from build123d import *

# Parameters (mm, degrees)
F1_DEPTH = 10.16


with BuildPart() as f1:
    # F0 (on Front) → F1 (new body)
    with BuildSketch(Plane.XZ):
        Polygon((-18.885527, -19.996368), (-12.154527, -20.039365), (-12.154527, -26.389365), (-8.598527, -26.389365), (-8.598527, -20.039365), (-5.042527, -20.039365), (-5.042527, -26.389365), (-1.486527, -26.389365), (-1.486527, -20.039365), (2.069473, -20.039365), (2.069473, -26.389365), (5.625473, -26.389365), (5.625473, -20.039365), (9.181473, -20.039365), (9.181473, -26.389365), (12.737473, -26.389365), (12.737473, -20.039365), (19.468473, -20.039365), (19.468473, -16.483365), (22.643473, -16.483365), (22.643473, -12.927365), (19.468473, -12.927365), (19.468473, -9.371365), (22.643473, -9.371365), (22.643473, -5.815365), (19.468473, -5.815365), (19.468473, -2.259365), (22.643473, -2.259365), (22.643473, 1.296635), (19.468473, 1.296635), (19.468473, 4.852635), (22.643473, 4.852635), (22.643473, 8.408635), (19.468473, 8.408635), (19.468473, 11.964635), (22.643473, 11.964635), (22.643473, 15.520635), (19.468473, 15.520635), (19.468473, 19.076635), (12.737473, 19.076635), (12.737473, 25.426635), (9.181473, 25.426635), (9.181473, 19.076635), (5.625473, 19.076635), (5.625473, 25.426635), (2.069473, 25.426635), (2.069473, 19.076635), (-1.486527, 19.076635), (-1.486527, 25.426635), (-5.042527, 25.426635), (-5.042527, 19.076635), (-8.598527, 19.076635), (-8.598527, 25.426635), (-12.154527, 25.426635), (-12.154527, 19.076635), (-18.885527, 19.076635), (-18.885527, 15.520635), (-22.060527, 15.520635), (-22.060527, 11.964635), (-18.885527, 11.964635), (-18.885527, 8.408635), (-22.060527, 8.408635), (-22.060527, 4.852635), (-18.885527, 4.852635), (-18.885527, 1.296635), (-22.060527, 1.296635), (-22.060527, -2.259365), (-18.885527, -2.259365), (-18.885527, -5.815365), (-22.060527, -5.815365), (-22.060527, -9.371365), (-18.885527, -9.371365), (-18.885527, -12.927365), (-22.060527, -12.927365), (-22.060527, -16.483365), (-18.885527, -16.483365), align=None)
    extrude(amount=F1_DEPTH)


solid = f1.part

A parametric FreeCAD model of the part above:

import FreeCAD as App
import Part
import Sketcher
Q = App.Units.Quantity


def add_polygon(sketch, points):
    """Adds a closed chain of lines whose ends are joined by coincident constraints."""
    first, n = sketch.GeometryCount, len(points)
    for a, b in zip(points, points[1:] + points[:1]):
        sketch.addGeometry(Part.LineSegment(App.Vector(*a, 0), App.Vector(*b, 0)), False)
    for i in range(n):
        sketch.addConstraint(Sketcher.Constraint("Coincident", first + i, 2, first + (i + 1) % n, 1))

doc = App.newDocument("Part")
params = doc.addObject("Spreadsheet::Sheet", "Params")
for row, (alias, value) in enumerate([
    ("sketch1_width", "0.14 in"),
    ("sketch1_height", "0.25 in"),
    ("sketch1_width2", "0.265 in"),
    ("sketch1_width3", "0.125 in"),
    ("pad1_length", "0.4 in"),
], start=1):
    params.set(f"A{row}", alias)
    params.set(f"B{row}", "=" + value)
    params.setAlias(f"B{row}", alias)

body = doc.addObject("PartDesign::Body", "Body")

sketch1 = doc.addObject("Sketcher::SketchObject", "Sketch")
body.addObject(sketch1)
sketch1.AttachmentSupport = (doc.XZ_Plane, [""])
sketch1.MapMode = "FlatFace"
add_polygon(sketch1, [(-18.9, -20), (-12.2, -20), (-12.2, -26.4), (-8.6, -26.4), (-8.6, -20), (-5, -20), (-5, -26.4), (-1.5, -26.4), (-1.5, -20), (2.1, -20), (2.1, -26.4), (5.6, -26.4), (5.6, -20), (9.2, -20), (9.2, -26.4), (12.7, -26.4), (12.7, -20), (19.5, -20), (19.5, -16.5), (22.6, -16.5), (22.6, -12.9), (19.5, -12.9), (19.5, -9.4), (22.6, -9.4), (22.6, -5.8), (19.5, -5.8), (19.5, -2.3), (22.6, -2.3), (22.6, 1.3), (19.5, 1.3), (19.5, 4.9), (22.6, 4.9), (22.6, 8.4), (19.5, 8.4), (19.5, 12), (22.6, 12), (22.6, 15.5), (19.5, 15.5), (19.5, 19.1), (12.7, 19.1), (12.7, 25.4), (9.2, 25.4), (9.2, 19.1), (5.6, 19.1), (5.6, 25.4), (2.1, 25.4), (2.1, 19.1), (-1.5, 19.1), (-1.5, 25.4), (-5, 25.4), (-5, 19.1), (-8.6, 19.1), (-8.6, 25.4), (-12.2, 25.4), (-12.2, 19.1), (-18.9, 19.1), (-18.9, 15.5), (-22.1, 15.5), (-22.1, 12), (-18.9, 12), (-18.9, 8.4), (-22.1, 8.4), (-22.1, 4.9), (-18.9, 4.9), (-18.9, 1.3), (-22.1, 1.3), (-22.1, -2.3), (-18.9, -2.3), (-18.9, -5.8), (-22.1, -5.8), (-22.1, -9.4), (-18.9, -9.4), (-18.9, -12.9), (-22.1, -12.9), (-22.1, -16.5), (-18.9, -16.5)])
sketch1.addConstraint([
    Sketcher.Constraint("Vertical", 1),
    Sketcher.Constraint("Horizontal", 2),
    Sketcher.Constraint("Vertical", 3),
    Sketcher.Constraint("Horizontal", 4),
    Sketcher.Constraint("Vertical", 5),
    Sketcher.Constraint("Horizontal", 6),
    Sketcher.Constraint("Vertical", 7),
    Sketcher.Constraint("Horizontal", 8),
    Sketcher.Constraint("Vertical", 9),
    Sketcher.Constraint("Horizontal", 10),
    Sketcher.Constraint("Vertical", 11),
    Sketcher.Constraint("Horizontal", 12),
    Sketcher.Constraint("Vertical", 13),
    Sketcher.Constraint("Horizontal", 14),
    Sketcher.Constraint("Vertical", 15),
    Sketcher.Constraint("Horizontal", 16),
    Sketcher.Constraint("Vertical", 17),
    Sketcher.Constraint("Horizontal", 18),
    Sketcher.Constraint("Vertical", 19),
    Sketcher.Constraint("Horizontal", 20),
    Sketcher.Constraint("Vertical", 21),
    Sketcher.Constraint("Horizontal", 22),
    Sketcher.Constraint("Vertical", 23),
    Sketcher.Constraint("Horizontal", 24),
    Sketcher.Constraint("Vertical", 25),
    Sketcher.Constraint("Horizontal", 26),
    Sketcher.Constraint("Vertical", 27),
    Sketcher.Constraint("Horizontal", 28),
    Sketcher.Constraint("Vertical", 29),
    Sketcher.Constraint("Horizontal", 30),
    Sketcher.Constraint("Vertical", 31),
    Sketcher.Constraint("Horizontal", 32),
    Sketcher.Constraint("Vertical", 33),
    Sketcher.Constraint("Horizontal", 34),
    Sketcher.Constraint("Vertical", 35),
    Sketcher.Constraint("Horizontal", 36),
    Sketcher.Constraint("Vertical", 37),
    Sketcher.Constraint("Horizontal", 38),
    Sketcher.Constraint("Vertical", 39),
    Sketcher.Constraint("Horizontal", 40),
    Sketcher.Constraint("Vertical", 41),
    Sketcher.Constraint("Horizontal", 42),
    Sketcher.Constraint("Vertical", 43),
    Sketcher.Constraint("Horizontal", 44),
    Sketcher.Constraint("Vertical", 45),
    Sketcher.Constraint("Horizontal", 46),
    Sketcher.Constraint("Vertical", 47),
    Sketcher.Constraint("Horizontal", 48),
    Sketcher.Constraint("Vertical", 49),
    Sketcher.Constraint("Horizontal", 50),
    Sketcher.Constraint("Vertical", 51),
    Sketcher.Constraint("Horizontal", 52),
    Sketcher.Constraint("Vertical", 53),
    Sketcher.Constraint("Horizontal", 54),
    Sketcher.Constraint("Vertical", 55),
    Sketcher.Constraint("Horizontal", 56),
    Sketcher.Constraint("Vertical", 57),
    Sketcher.Constraint("Horizontal", 58),
    Sketcher.Constraint("Vertical", 59),
    Sketcher.Constraint("Horizontal", 60),
    Sketcher.Constraint("Vertical", 61),
    Sketcher.Constraint("Horizontal", 62),
    Sketcher.Constraint("Vertical", 63),
    Sketcher.Constraint("Horizontal", 64),
    Sketcher.Constraint("Vertical", 65),
    Sketcher.Constraint("Horizontal", 66),
    Sketcher.Constraint("Vertical", 67),
    Sketcher.Constraint("Horizontal", 68),
    Sketcher.Constraint("Vertical", 69),
    Sketcher.Constraint("Horizontal", 70),
    Sketcher.Constraint("Vertical", 71),
    Sketcher.Constraint("Horizontal", 72),
    Sketcher.Constraint("Vertical", 73),
    Sketcher.Constraint("Horizontal", 74),
    Sketcher.Constraint("Vertical", 75),
    Sketcher.Constraint("Horizontal", 0, 2, 3, 2),
    Sketcher.Constraint("Horizontal", 2, 2, 5, 2),
    Sketcher.Constraint("Horizontal", 4, 2, 7, 2),
    Sketcher.Constraint("Horizontal", 6, 2, 9, 2),
    Sketcher.Constraint("Horizontal", 8, 2, 11, 2),
    Sketcher.Constraint("Horizontal", 10, 2, 13, 2),
    Sketcher.Constraint("Horizontal", 12, 2, 15, 2),
    Sketcher.Constraint("Horizontal", 38, 2, 41, 2),
    Sketcher.Constraint("Horizontal", 40, 2, 43, 2),
    Sketcher.Constraint("Horizontal", 42, 2, 45, 2),
    Sketcher.Constraint("Horizontal", 44, 2, 47, 2),
    Sketcher.Constraint("Horizontal", 46, 2, 49, 2),
    Sketcher.Constraint("Horizontal", 48, 2, 51, 2),
    Sketcher.Constraint("Horizontal", 50, 2, 53, 2),
    Sketcher.Constraint("Horizontal", 36, 2, 55, 2),
    Sketcher.Constraint("Horizontal", 34, 2, 57, 2),
    Sketcher.Constraint("Horizontal", 32, 2, 59, 2),
    Sketcher.Constraint("Horizontal", 30, 2, 61, 2),
    Sketcher.Constraint("Horizontal", 28, 2, 63, 2),
    Sketcher.Constraint("Horizontal", 26, 2, 65, 2),
    Sketcher.Constraint("Horizontal", 24, 2, 67, 2),
    Sketcher.Constraint("Horizontal", 22, 2, 69, 2),
    Sketcher.Constraint("Horizontal", 20, 2, 71, 2),
    Sketcher.Constraint("Horizontal", 18, 2, 73, 2),
    Sketcher.Constraint("Vertical", 17, 2, 20, 2),
    Sketcher.Constraint("Vertical", 19, 2, 22, 2),
    Sketcher.Constraint("Vertical", 21, 2, 24, 2),
    Sketcher.Constraint("Vertical", 23, 2, 26, 2),
    Sketcher.Constraint("Vertical", 25, 2, 28, 2),
    Sketcher.Constraint("Vertical", 27, 2, 30, 2),
    Sketcher.Constraint("Vertical", 29, 2, 32, 2),
    Sketcher.Constraint("Vertical", 31, 2, 34, 2),
    Sketcher.Constraint("Vertical", 33, 2, 36, 2),
    Sketcher.Constraint("Vertical", 15, 2, 38, 2),
    Sketcher.Constraint("Vertical", 13, 2, 40, 2),
    Sketcher.Constraint("Vertical", 11, 2, 42, 2),
    Sketcher.Constraint("Vertical", 9, 2, 44, 2),
    Sketcher.Constraint("Vertical", 7, 2, 46, 2),
    Sketcher.Constraint("Vertical", 5, 2, 48, 2),
    Sketcher.Constraint("Vertical", 3, 2, 50, 2),
    Sketcher.Constraint("Vertical", 1, 2, 52, 2),
    Sketcher.Constraint("Vertical", 55, 2, 58, 2),
    Sketcher.Constraint("Vertical", 57, 2, 60, 2),
    Sketcher.Constraint("Vertical", 59, 2, 62, 2),
    Sketcher.Constraint("Vertical", 61, 2, 64, 2),
    Sketcher.Constraint("Vertical", 63, 2, 66, 2),
    Sketcher.Constraint("Vertical", 65, 2, 68, 2),
    Sketcher.Constraint("Vertical", 67, 2, 70, 2),
    Sketcher.Constraint("Vertical", 69, 2, 72, 2),
    Sketcher.Constraint("Vertical", 71, 2, 74, 2),
    Sketcher.Constraint("Equal", 2, 4),
    Sketcher.Constraint("Equal", 4, 6),
    Sketcher.Constraint("Equal", 6, 8),
    Sketcher.Constraint("Equal", 8, 10),
    Sketcher.Constraint("Equal", 10, 12),
    Sketcher.Constraint("Equal", 12, 14),
    Sketcher.Constraint("Equal", 38, 54),
    Sketcher.Constraint("Equal", 36, 56),
    Sketcher.Constraint("Equal", 52, 17),
    Sketcher.Constraint("Equal", 17, 19),
    Sketcher.Constraint("Equal", 19, 21),
    Sketcher.Constraint("Equal", 21, 23),
    Sketcher.Constraint("Equal", 23, 25),
    Sketcher.Constraint("Equal", 25, 27),
    Sketcher.Constraint("Equal", 27, 29),
    Sketcher.Constraint("Equal", 29, 31),
    Sketcher.Constraint("Equal", 31, 33),
    Sketcher.Constraint("Equal", 33, 35),
    Sketcher.Constraint("Equal", 35, 37),
    Sketcher.Constraint("Equal", 15, 39),
    Sketcher.Constraint("DistanceX", 2, 1, 2, 2, Q("0.14 in")),
    Sketcher.Constraint("DistanceY", 1, 2, 1, 1, Q("0.25 in")),
    Sketcher.Constraint("DistanceX", 16, 1, 16, 2, Q("0.265 in")),
    Sketcher.Constraint("DistanceX", 18, 1, 18, 2, Q("0.125 in")),
    Sketcher.Constraint("DistanceY", 75, 2, 75, 1, 3.513003),
    Sketcher.Constraint("DistanceY", 75, 2, -1, 1, 19.996368),
    Sketcher.Constraint("DistanceX", 0, 2, -1, 1, 12.154527),
])
sketch1.setExpression("Constraints[221]", "Params.sketch1_width")
sketch1.setExpression("Constraints[222]", "Params.sketch1_height")
sketch1.setExpression("Constraints[223]", "Params.sketch1_width2")
sketch1.setExpression("Constraints[224]", "Params.sketch1_width3")
pad1 = doc.addObject("PartDesign::Pad", "Pad")
body.addObject(pad1)
pad1.Profile = sketch1
pad1.setExpression("Length", "Params.pad1_length")

doc.recompute()
